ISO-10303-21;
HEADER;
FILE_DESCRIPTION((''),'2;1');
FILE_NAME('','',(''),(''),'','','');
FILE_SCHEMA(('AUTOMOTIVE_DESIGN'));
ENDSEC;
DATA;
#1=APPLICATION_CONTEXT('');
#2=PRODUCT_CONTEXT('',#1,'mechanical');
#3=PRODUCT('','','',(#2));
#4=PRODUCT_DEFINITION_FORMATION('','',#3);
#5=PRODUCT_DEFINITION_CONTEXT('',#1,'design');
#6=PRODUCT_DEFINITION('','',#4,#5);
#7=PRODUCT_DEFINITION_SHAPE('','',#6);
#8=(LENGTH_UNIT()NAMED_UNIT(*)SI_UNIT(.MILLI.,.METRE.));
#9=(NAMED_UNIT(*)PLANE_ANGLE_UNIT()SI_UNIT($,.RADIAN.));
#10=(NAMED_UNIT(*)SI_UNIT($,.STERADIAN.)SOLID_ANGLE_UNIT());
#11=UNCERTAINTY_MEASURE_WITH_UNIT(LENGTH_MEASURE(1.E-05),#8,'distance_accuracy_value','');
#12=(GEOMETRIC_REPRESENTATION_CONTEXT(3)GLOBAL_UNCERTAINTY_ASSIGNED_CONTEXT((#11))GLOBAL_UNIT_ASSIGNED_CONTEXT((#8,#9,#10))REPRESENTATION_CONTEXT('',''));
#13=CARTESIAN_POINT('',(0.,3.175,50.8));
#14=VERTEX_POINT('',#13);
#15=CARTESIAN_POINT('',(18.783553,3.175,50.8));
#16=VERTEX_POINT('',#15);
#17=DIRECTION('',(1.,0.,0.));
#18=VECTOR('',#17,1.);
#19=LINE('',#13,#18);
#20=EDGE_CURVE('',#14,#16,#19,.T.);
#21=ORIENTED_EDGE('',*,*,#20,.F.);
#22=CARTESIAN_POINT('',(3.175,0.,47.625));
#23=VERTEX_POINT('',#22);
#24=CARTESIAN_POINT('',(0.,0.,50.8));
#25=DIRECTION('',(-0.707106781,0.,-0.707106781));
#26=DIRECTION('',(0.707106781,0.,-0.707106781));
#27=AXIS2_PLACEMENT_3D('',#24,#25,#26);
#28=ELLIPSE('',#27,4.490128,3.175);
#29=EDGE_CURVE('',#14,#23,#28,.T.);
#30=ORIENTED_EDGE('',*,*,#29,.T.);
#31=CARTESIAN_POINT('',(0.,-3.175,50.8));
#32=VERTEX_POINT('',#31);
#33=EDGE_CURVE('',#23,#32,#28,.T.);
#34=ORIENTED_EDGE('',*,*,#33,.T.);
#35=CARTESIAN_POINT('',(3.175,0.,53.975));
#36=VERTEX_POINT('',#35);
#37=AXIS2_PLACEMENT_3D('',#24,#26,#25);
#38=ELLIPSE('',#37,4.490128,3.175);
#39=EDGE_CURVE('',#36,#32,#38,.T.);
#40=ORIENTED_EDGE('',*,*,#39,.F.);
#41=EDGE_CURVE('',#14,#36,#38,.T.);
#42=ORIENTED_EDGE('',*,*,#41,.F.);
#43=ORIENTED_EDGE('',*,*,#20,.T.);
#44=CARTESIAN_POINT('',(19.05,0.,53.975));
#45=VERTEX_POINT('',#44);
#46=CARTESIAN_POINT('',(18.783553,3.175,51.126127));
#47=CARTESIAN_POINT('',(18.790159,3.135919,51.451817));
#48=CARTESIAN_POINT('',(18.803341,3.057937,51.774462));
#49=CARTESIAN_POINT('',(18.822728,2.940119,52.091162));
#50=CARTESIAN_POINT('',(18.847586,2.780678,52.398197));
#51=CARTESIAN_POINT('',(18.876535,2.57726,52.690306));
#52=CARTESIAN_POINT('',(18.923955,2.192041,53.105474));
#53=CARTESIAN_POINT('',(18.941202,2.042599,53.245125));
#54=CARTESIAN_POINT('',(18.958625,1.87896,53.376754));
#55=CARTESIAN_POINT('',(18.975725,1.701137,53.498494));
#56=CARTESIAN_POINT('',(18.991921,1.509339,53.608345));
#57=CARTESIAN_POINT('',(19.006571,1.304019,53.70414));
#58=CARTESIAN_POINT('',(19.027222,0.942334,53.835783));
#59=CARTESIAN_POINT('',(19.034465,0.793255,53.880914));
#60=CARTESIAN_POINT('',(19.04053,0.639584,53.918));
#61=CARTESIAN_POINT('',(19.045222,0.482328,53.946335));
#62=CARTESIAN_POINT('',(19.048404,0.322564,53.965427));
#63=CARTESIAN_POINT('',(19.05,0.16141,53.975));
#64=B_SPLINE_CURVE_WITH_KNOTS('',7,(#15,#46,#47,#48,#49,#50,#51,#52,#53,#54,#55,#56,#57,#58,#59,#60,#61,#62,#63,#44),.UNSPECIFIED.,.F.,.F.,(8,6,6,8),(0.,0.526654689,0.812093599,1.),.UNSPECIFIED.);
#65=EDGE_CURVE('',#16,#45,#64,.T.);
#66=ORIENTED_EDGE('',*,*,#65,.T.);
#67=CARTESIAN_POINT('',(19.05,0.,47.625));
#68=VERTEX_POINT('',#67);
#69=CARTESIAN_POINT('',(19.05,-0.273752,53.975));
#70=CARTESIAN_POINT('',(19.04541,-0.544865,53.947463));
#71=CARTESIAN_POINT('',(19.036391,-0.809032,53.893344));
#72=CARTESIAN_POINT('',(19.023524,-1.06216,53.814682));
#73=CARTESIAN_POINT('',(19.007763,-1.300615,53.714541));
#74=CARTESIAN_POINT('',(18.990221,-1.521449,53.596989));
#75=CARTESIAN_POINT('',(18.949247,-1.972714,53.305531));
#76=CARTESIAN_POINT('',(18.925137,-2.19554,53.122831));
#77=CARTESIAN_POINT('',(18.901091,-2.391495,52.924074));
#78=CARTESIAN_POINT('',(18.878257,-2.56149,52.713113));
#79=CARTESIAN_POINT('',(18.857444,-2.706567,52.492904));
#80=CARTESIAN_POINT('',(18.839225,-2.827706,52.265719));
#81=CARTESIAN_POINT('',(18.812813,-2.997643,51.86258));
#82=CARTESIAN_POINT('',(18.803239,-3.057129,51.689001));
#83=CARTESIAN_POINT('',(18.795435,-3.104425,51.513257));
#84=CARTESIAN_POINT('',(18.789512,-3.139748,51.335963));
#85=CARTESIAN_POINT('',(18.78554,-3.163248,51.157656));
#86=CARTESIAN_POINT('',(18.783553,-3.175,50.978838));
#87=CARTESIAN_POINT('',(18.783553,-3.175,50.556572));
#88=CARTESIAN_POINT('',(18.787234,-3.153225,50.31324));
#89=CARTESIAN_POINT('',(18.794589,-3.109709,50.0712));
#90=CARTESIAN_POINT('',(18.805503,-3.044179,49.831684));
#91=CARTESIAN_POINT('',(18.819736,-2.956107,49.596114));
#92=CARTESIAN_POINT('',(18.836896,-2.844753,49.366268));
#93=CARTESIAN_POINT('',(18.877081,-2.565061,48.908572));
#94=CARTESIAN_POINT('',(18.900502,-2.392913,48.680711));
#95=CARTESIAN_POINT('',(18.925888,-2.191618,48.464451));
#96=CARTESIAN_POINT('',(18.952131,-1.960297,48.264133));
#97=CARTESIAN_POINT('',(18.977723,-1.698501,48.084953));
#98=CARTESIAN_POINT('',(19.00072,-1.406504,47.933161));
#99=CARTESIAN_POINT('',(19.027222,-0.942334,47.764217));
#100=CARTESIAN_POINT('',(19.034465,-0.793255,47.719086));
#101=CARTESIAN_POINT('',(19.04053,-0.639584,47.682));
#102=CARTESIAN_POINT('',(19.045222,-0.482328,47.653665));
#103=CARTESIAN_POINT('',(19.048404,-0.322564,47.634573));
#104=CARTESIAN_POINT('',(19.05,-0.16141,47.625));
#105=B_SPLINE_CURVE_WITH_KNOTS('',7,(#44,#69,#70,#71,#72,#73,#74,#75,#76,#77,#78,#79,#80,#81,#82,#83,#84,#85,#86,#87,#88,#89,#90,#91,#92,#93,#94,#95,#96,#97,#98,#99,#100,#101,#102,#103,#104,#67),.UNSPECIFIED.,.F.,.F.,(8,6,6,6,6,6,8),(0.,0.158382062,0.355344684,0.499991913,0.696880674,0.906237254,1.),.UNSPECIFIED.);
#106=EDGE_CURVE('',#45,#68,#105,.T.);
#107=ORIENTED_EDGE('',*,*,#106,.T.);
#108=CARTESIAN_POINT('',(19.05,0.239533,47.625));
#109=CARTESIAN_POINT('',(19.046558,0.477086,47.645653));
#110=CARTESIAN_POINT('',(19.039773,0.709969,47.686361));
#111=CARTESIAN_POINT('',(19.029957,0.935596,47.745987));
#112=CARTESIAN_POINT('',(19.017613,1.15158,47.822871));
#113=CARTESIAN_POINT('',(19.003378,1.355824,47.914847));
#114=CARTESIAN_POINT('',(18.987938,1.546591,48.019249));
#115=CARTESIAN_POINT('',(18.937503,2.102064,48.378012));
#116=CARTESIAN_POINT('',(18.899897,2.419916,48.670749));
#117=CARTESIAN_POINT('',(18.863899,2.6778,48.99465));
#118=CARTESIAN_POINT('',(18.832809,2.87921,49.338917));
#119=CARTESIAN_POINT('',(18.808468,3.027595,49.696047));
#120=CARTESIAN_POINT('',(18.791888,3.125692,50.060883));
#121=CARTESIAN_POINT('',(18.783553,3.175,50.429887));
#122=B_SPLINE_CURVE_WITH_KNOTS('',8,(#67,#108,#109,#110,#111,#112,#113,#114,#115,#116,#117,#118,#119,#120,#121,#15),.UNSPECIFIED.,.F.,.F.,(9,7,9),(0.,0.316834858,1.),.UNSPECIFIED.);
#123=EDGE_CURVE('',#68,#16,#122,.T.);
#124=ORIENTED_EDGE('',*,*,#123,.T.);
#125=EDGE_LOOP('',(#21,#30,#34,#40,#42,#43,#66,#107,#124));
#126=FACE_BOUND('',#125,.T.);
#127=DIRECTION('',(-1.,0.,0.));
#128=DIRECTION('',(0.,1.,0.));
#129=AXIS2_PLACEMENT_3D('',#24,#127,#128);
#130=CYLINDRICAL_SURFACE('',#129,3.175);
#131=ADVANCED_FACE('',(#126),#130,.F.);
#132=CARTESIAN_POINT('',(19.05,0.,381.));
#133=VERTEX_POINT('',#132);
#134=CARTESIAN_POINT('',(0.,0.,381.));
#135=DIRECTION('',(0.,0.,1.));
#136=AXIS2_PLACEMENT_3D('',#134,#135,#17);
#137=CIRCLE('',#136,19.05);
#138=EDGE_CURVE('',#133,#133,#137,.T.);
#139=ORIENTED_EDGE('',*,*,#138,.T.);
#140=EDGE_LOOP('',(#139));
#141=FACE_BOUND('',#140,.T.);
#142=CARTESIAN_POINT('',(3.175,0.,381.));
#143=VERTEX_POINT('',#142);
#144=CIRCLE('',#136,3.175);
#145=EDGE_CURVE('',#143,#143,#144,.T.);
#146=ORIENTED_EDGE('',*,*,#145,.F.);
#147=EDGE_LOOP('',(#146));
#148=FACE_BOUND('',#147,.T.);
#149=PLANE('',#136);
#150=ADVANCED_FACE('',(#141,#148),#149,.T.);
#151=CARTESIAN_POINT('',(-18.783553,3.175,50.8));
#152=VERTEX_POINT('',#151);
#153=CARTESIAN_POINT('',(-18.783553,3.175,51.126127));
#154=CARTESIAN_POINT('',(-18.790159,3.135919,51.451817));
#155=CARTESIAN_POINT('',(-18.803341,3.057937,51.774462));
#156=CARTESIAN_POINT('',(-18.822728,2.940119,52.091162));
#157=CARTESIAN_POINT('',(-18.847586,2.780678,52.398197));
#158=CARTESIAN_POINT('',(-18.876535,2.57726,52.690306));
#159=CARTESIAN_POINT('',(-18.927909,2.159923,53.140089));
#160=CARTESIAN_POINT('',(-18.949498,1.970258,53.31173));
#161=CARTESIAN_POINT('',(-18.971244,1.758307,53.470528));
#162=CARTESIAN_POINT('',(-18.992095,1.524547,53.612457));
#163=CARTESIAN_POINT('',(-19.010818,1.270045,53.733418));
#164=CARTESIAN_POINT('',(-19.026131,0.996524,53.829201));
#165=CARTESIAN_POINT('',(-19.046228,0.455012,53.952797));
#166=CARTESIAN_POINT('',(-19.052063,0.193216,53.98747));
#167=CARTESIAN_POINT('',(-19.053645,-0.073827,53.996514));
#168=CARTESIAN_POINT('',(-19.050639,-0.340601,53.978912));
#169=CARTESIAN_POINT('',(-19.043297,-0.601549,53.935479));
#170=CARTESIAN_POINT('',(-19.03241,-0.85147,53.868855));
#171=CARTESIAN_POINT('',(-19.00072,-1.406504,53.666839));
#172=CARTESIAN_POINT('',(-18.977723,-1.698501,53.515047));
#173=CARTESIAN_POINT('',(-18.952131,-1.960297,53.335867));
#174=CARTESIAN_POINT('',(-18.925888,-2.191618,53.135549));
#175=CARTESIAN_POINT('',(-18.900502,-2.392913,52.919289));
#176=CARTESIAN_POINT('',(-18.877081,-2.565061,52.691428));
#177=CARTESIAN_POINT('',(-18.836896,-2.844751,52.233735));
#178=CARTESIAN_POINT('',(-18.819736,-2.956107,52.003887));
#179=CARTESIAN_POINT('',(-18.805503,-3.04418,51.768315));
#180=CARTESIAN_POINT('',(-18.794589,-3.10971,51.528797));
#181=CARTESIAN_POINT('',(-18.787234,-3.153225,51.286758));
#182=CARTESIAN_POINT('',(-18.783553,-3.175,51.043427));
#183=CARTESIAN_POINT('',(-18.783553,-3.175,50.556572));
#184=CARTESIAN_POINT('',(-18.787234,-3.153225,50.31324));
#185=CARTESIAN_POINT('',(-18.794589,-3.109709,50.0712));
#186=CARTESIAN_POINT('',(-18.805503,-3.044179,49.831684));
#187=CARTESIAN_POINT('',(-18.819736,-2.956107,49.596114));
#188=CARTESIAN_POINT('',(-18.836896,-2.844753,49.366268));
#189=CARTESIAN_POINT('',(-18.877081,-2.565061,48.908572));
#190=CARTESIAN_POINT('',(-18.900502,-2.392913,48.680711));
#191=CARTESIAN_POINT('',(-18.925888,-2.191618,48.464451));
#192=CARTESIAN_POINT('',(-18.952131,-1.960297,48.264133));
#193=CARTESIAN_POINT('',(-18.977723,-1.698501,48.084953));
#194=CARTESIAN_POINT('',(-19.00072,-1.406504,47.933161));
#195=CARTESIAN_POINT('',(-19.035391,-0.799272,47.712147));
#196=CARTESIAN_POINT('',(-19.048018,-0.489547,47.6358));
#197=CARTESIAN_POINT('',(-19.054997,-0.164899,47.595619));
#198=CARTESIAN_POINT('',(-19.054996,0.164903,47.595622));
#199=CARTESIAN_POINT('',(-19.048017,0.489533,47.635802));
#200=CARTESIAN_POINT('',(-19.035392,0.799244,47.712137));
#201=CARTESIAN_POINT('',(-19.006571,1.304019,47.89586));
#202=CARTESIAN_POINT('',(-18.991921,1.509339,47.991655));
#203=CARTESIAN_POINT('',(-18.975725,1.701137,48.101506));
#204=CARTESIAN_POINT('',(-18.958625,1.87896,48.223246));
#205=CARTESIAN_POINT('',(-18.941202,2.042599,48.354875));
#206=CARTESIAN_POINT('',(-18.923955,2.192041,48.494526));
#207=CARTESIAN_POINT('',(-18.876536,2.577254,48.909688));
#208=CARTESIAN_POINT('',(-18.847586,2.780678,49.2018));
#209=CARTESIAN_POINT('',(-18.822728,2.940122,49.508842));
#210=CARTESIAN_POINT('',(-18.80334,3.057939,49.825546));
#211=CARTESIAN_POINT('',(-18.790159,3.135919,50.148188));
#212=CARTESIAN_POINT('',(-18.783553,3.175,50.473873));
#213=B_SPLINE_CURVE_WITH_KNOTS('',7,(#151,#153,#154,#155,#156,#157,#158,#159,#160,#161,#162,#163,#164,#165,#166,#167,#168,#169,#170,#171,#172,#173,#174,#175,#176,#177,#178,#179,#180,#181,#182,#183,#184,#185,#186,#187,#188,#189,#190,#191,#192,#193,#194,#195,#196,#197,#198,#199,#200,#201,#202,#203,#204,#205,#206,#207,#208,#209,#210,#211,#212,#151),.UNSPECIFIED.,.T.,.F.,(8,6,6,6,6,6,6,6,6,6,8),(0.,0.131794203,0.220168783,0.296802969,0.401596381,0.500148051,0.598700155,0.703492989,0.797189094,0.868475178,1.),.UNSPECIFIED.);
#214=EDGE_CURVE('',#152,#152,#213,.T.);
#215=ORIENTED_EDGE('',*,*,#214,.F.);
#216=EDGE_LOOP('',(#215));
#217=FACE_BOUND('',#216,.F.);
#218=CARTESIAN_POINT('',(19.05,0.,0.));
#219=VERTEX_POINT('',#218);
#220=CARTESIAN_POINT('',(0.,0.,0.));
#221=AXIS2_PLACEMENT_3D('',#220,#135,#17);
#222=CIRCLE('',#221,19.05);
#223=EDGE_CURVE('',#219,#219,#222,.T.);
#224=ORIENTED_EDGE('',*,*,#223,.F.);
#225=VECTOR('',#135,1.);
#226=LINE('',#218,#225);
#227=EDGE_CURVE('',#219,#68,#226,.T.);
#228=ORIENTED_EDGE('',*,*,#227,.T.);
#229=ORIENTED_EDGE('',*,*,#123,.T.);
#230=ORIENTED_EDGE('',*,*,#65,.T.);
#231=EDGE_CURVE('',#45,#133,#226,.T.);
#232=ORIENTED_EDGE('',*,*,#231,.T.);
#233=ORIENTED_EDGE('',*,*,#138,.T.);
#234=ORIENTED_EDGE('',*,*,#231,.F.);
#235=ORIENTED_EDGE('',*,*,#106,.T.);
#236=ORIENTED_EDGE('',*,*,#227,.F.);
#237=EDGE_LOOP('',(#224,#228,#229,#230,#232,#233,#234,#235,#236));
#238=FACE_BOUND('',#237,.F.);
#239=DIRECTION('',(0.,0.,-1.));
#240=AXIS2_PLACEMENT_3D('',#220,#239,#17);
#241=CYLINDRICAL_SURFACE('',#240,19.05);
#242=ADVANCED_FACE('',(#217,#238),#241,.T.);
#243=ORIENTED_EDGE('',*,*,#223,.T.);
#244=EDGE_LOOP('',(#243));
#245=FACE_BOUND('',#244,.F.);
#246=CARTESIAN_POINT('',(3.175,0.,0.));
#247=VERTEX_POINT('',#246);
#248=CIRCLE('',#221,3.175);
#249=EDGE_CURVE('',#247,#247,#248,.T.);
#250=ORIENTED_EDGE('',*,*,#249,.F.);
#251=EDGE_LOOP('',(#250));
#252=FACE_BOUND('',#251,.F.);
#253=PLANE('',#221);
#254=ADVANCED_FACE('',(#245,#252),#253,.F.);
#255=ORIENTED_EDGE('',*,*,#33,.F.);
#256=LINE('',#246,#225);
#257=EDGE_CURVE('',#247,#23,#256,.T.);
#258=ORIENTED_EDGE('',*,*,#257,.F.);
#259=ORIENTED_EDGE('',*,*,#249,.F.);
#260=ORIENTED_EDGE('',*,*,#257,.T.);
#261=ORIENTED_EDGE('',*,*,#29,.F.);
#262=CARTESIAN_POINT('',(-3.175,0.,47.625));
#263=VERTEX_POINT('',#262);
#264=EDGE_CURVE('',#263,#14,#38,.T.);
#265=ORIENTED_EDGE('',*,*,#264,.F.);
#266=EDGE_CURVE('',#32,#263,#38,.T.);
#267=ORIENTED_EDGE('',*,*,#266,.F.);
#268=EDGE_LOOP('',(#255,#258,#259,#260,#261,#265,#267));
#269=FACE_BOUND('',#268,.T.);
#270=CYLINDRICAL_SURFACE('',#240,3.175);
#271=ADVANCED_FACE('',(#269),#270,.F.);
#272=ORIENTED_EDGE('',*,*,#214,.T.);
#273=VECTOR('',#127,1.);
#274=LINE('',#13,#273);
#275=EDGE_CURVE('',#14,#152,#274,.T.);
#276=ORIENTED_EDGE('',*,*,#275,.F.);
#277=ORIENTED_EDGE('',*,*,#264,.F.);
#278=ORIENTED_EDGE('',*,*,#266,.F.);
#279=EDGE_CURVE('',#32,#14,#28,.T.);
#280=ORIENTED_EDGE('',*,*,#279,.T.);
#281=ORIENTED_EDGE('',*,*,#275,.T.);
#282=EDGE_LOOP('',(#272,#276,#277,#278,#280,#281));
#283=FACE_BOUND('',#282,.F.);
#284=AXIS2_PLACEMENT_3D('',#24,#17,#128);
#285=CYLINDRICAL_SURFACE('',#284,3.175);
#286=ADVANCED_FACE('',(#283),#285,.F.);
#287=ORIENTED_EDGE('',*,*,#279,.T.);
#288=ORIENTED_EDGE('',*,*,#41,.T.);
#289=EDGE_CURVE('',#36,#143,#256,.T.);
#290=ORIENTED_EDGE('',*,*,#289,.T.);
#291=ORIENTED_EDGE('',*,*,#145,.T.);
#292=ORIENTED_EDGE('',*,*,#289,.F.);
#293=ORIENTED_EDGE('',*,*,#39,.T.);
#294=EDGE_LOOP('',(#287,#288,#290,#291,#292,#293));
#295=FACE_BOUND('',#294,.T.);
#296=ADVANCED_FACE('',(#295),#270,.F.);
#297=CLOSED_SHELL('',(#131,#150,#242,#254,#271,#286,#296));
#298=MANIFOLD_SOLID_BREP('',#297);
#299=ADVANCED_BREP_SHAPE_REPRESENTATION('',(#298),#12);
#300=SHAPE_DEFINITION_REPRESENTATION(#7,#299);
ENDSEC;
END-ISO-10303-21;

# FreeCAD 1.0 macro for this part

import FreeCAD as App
import Part
import Sketcher
Q = App.Units.Quantity

doc = App.newDocument("Part")
params = doc.addObject("Spreadsheet::Sheet", "Params")
for row, (alias, value) in enumerate([
    ("sketch1_diameter", "1.5 in"),
    ("sketch1_diameter2", "0.25 in"),
    ("pad1_length", "15 in"),
    ("sketch2_diameter", "0.25 in"),
    ("pocket1_length", "5 in"),
], start=1):
    params.set(f"A{row}", alias)
    params.set(f"B{row}", "=" + value)
    params.setAlias(f"B{row}", alias)

body = doc.addObject("PartDesign::Body", "Body")

# Sketch on XY plane
sketch1 = body.newObject("Sketcher::SketchObject", "Sketch")
sketch1.AttachmentSupport = (doc.getObject("XY_Plane"), [""])
sketch1.MapMode = "FlatFace"
sketch1.addGeometry(Part.Circle(App.Vector(0, 0, 0), App.Vector(0, 0, 1), 19.1), False)
sketch1.addGeometry(Part.Circle(App.Vector(0, 0, 0), App.Vector(0, 0, 1), 3.2), False)
sketch1.addConstraint(Sketcher.Constraint("Coincident", 0, 3, -1, 1))
sketch1.addConstraint(Sketcher.Constraint("Coincident", 1, 3, -1, 1))
sketch1.addConstraint(Sketcher.Constraint("Diameter", 0, Q("1.5 in")))
sketch1.addConstraint(Sketcher.Constraint("Diameter", 1, Q("0.25 in")))
sketch1.setExpression("Constraints[2]", "Params.sketch1_diameter")
sketch1.setExpression("Constraints[3]", "Params.sketch1_diameter2")
pad1 = body.newObject("PartDesign::Pad", "Pad")
pad1.Profile = sketch1
pad1.setExpression("Length", "Params.pad1_length")

# Sketch on YZ plane
sketch2 = body.newObject("Sketcher::SketchObject", "Sketch001")
sketch2.AttachmentSupport = (doc.getObject("YZ_Plane"), [""])
sketch2.MapMode = "FlatFace"
sketch2.addGeometry(Part.Circle(App.Vector(0, 50.8, 0), App.Vector(0, 0, 1), 3.2), False)
sketch2.addConstraint(Sketcher.Constraint("PointOnObject", 0, 3, -2))
sketch2.addConstraint(Sketcher.Constraint("Diameter", 0, Q("0.25 in")))
sketch2.addConstraint(Sketcher.Constraint("DistanceY", -1, 1, 0, 3, Q("2 in")))
sketch2.setExpression("Constraints[1]", "Params.sketch2_diameter")
pocket1 = body.newObject("PartDesign::Pocket", "Pocket")
pocket1.Profile = sketch2
pocket1.setExpression("Length", "Params.pocket1_length")
pocket1.Midplane = True

doc.recompute()
